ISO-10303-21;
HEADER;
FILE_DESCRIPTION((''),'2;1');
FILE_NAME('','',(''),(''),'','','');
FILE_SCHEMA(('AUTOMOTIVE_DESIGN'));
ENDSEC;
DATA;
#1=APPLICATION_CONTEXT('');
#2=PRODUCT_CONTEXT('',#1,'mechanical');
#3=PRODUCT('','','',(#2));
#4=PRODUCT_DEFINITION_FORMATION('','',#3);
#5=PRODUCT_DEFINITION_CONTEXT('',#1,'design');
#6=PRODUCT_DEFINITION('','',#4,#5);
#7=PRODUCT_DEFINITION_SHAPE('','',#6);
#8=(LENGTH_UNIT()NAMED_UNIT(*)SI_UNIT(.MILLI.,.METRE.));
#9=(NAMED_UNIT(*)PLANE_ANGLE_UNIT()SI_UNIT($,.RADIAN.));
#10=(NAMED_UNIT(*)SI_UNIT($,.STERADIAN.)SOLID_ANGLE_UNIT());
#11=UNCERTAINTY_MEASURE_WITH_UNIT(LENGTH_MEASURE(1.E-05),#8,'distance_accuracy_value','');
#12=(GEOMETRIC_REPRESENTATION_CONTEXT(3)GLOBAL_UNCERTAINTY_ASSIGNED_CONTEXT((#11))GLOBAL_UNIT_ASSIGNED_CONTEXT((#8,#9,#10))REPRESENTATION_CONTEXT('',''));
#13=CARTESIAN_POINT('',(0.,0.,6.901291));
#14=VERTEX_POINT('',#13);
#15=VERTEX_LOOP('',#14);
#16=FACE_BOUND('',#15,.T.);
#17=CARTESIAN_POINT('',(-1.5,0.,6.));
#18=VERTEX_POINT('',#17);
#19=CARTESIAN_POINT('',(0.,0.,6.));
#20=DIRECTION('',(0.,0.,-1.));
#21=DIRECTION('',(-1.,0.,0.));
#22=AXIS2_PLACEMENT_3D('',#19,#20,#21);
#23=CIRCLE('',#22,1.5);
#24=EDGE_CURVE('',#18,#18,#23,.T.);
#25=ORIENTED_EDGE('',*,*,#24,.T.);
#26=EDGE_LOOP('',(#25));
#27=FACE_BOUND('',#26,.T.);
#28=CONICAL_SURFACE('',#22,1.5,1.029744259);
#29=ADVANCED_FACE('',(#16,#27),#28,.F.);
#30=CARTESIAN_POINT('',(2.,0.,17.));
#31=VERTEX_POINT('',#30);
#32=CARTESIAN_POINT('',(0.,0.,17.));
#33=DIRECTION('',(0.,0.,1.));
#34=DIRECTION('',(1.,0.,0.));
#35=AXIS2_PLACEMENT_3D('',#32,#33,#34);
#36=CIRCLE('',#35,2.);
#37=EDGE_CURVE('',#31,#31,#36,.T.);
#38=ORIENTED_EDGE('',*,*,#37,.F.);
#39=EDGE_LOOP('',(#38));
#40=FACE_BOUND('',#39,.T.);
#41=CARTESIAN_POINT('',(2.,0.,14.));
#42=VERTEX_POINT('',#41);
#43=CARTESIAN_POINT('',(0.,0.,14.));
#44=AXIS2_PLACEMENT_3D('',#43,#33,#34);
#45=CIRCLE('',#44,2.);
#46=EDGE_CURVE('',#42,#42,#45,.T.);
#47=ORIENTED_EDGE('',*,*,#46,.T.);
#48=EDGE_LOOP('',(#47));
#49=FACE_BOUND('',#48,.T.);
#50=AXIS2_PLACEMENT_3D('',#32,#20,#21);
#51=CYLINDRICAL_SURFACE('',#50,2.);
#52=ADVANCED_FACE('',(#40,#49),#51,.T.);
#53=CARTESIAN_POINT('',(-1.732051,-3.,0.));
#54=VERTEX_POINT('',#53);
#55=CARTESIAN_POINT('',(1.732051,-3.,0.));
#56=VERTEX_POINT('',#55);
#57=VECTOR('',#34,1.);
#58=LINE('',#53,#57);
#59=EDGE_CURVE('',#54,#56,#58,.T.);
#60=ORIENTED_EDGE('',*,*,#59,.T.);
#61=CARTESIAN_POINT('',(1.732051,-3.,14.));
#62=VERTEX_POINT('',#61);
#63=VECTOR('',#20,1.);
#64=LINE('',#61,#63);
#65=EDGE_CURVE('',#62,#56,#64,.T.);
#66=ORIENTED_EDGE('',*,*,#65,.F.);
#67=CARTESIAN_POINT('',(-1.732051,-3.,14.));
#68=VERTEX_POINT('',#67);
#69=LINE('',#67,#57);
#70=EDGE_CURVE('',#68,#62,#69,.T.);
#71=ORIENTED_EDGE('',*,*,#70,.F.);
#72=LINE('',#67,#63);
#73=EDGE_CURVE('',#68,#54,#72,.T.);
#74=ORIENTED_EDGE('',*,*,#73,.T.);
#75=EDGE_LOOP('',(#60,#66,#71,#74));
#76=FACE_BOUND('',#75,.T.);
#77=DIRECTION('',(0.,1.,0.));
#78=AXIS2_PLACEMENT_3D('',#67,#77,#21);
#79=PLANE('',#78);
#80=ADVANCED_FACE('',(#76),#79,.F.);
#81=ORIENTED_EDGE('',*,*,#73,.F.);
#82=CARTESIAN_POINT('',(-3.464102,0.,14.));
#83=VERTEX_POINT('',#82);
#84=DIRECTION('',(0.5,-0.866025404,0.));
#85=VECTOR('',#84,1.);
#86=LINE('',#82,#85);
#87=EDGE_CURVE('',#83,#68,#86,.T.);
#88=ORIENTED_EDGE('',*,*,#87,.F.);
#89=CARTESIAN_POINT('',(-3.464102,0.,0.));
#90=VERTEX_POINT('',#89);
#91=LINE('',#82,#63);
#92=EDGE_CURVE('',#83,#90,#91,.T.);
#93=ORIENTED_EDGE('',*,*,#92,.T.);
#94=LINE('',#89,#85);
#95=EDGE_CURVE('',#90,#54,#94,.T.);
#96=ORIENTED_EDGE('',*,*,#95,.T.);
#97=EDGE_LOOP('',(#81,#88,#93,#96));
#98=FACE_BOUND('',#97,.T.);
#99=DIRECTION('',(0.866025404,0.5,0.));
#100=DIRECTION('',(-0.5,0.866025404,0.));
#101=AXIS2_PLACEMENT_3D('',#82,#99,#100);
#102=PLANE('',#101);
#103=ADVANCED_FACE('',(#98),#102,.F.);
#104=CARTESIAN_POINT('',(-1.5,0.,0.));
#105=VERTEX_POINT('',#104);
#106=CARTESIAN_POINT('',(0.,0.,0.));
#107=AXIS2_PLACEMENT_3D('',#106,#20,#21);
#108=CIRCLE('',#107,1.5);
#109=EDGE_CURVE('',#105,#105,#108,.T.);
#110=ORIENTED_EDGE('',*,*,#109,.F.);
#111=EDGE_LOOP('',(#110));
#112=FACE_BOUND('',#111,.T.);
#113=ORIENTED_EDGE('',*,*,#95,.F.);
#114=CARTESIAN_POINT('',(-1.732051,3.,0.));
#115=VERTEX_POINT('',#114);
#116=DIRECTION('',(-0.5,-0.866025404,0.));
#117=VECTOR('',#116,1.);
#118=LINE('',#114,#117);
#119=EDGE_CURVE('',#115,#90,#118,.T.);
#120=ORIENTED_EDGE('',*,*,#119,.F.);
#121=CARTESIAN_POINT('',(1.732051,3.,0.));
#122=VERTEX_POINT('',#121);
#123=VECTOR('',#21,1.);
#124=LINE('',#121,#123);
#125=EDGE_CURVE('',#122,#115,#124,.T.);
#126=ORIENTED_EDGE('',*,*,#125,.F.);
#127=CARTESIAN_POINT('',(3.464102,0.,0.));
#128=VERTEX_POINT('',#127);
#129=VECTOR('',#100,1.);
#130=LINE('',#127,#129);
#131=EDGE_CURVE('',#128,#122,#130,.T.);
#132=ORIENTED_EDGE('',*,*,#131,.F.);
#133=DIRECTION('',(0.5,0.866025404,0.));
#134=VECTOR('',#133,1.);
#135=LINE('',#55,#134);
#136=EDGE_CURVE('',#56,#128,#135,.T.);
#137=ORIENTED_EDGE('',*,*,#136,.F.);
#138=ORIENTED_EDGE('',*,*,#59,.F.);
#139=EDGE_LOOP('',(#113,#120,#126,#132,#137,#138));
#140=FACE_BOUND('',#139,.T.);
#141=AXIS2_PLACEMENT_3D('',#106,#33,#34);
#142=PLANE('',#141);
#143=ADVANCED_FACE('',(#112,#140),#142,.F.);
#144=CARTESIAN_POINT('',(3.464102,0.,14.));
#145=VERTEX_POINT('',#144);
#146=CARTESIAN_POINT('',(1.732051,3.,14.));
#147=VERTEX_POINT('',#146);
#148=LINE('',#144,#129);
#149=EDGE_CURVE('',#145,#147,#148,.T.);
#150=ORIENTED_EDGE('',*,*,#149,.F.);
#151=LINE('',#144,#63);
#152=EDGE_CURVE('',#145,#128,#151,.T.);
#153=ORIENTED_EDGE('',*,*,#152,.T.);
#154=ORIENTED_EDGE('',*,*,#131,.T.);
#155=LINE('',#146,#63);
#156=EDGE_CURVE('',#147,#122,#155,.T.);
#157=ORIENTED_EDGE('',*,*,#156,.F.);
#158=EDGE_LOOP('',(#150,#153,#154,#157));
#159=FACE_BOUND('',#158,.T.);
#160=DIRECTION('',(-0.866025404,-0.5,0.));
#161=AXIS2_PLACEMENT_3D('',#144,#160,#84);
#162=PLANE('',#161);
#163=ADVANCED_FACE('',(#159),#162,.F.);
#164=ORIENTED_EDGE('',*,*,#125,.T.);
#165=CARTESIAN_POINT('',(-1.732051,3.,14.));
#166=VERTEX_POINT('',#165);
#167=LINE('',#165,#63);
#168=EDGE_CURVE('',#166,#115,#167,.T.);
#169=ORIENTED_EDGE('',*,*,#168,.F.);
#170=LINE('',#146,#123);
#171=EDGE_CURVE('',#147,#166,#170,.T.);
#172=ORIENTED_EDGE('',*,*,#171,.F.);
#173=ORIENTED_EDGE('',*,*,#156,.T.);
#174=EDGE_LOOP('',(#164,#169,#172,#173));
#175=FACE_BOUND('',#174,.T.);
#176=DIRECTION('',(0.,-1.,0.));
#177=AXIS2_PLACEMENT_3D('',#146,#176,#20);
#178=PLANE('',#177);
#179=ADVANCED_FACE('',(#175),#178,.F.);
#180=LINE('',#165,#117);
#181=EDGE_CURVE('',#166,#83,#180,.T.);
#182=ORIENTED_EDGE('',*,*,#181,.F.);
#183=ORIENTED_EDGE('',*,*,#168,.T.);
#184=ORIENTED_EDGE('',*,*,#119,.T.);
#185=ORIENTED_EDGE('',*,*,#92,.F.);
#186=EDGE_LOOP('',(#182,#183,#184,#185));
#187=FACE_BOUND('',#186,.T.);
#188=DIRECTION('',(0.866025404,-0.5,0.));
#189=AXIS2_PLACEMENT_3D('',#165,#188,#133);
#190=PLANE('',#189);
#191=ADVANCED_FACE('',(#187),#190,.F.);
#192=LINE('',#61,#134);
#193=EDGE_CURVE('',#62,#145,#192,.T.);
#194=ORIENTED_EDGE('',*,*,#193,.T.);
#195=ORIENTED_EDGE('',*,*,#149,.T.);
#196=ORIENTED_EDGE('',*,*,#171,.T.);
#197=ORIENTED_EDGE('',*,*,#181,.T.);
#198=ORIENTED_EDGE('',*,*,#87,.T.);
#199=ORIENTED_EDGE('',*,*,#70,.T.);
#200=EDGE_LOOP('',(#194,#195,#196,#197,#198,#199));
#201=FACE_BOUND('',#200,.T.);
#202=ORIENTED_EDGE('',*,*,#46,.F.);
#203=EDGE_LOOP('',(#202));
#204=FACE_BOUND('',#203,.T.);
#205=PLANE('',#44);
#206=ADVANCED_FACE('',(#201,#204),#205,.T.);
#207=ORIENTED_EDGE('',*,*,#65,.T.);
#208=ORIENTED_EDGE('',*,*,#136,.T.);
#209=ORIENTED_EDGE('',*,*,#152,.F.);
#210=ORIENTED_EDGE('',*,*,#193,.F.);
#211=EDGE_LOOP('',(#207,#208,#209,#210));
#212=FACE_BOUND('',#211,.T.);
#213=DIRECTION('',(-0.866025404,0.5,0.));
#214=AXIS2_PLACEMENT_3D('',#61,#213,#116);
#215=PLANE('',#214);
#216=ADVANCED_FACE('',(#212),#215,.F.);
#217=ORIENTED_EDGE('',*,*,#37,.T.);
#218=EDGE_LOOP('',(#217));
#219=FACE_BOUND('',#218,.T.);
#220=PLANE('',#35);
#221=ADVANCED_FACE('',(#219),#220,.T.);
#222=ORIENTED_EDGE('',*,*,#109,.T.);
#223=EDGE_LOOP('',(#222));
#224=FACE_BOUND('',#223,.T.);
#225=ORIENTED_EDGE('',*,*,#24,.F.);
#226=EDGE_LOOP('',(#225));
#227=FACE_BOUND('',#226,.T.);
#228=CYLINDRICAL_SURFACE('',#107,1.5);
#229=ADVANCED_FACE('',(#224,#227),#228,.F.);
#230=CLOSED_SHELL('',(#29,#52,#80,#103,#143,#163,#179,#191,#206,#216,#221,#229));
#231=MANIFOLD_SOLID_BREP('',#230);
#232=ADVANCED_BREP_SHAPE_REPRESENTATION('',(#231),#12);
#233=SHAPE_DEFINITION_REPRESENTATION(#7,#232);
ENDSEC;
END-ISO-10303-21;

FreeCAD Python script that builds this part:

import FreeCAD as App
import Part
import Sketcher

V = App.Vector
Q = App.Units.Quantity

doc = App.newDocument("Part")
body = doc.addObject("PartDesign::Body", "Body")

# Sketch on XY plane
sketch1 = body.newObject("Sketcher::SketchObject", "Sketch")
sketch1.AttachmentSupport = (doc.getObject("XY_Plane"), [""])
sketch1.MapMode = "FlatFace"
sketch1.addGeometry([
    Part.LineSegment(V(1.7, 3, 0), V(-1.7, 3, 0)),  # 0
    Part.LineSegment(V(-1.7, 3, 0), V(-3.5, 0, 0)),  # 1
    Part.LineSegment(V(-3.5, 0, 0), V(-1.7, -3, 0)),  # 2
    Part.LineSegment(V(-1.7, -3, 0), V(1.7, -3, 0)),  # 3
    Part.LineSegment(V(1.7, -3, 0), V(3.5, 0, 0)),  # 4
    Part.LineSegment(V(3.5, 0, 0), V(1.7, 3, 0)),  # 5
], False)
sketch1.addConstraint([
    Sketcher.Constraint("Coincident", 0, 2, 1, 1),
    Sketcher.Constraint("Coincident", 1, 2, 2, 1),
    Sketcher.Constraint("Coincident", 2, 2, 3, 1),
    Sketcher.Constraint("Coincident", 3, 2, 4, 1),
    Sketcher.Constraint("Coincident", 4, 2, 5, 1),
    Sketcher.Constraint("Coincident", 5, 2, 0, 1),
    Sketcher.Constraint("Horizontal", 0),
    Sketcher.Constraint("Horizontal", 3),
    Sketcher.Constraint("Symmetric", 0, 2, 3, 2, -1, 1),
    Sketcher.Constraint("Symmetric", 1, 2, 4, 2, -1, 1),
    Sketcher.Constraint("PointOnObject", 1, 2, -1),
    Sketcher.Constraint("Parallel", 2, 5),
    Sketcher.Constraint("Vertical", 0, 2, 2, 2),
    Sketcher.Constraint("Angle", 1, Q("-120 deg")),
    Sketcher.Constraint("DistanceY", -1, 1, 0, 2, Q("3 mm")),
    Sketcher.Constraint("DistanceX", 0, 2, 0, 1, Q("3.464102 mm")),
])
pad1 = body.newObject("PartDesign::Pad", "Pad")
pad1.Profile = sketch1
pad1.Length = 14

# Sketch on XY plane
sketch2 = body.newObject("Sketcher::SketchObject", "Sketch001")
sketch2.AttachmentSupport = (doc.getObject("XY_Plane"), [""])
sketch2.MapMode = "FlatFace"
sketch2.AttachmentOffset = App.Placement(V(0, 0, 14), App.Rotation())
sketch2.addGeometry(Part.Circle(V(0, 0, 0), V(0, 0, 1), 2), False)
sketch2.addConstraint([
    Sketcher.Constraint("Coincident", 0, 3, -1, 1),
    Sketcher.Constraint("Diameter", 0, Q("4 mm")),
])
pad2 = body.newObject("PartDesign::Pad", "Pad001")
pad2.Profile = sketch2
pad2.Length = 3

# Sketch on XY plane
sketch3 = body.newObject("Sketcher::SketchObject", "Sketch002")
sketch3.AttachmentSupport = (doc.getObject("XY_Plane"), [""])
sketch3.MapMode = "FlatFace"
sketch3.addGeometry(Part.Circle(V(0, 0, 0), V(0, 0, 1), 1.5), False)
sketch3.addConstraint([
    Sketcher.Constraint("Coincident", 0, 3, -1, 1),
    Sketcher.Constraint("Diameter", 0, Q("3 mm")),
])
doc.recompute()
hole = body.newObject("PartDesign::Hole", "Hole")
hole.Profile = sketch3
hole.ThreadType = "None"
hole.Diameter = 3
hole.DepthType = "Dimension"
hole.Depth = 6
hole.DrillPoint = "Angled"
hole.DrillPointAngle = 118
hole.Reversed = True

doc.recompute()
